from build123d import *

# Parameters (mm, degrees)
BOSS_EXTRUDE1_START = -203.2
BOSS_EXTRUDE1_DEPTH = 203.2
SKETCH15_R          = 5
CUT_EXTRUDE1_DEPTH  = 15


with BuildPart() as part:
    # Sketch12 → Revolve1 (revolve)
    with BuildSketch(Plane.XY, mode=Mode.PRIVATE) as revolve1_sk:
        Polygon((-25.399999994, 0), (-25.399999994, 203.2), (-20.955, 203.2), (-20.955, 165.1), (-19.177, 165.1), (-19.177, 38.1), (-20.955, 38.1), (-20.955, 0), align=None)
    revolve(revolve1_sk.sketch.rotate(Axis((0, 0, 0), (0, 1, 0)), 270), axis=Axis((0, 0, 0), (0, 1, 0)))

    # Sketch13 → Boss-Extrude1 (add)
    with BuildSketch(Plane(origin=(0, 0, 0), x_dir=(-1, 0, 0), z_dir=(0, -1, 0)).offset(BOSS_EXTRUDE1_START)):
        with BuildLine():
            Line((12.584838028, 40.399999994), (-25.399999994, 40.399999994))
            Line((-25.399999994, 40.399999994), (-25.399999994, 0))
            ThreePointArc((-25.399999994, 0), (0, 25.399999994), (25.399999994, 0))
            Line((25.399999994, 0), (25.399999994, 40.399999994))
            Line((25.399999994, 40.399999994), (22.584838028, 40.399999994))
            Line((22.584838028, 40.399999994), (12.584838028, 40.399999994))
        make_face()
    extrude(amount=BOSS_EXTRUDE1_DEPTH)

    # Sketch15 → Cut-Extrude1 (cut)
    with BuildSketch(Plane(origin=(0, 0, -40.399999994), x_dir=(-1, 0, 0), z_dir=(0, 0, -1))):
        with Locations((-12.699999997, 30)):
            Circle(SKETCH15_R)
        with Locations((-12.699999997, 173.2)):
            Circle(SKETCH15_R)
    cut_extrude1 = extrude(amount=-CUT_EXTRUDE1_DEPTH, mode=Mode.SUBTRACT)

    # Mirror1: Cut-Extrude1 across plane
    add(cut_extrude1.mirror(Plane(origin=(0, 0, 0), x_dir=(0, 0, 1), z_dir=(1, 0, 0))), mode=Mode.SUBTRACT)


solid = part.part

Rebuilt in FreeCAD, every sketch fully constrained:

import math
import FreeCAD as App
import Part
import Sketcher
Q = App.Units.Quantity

doc = App.newDocument("Part")
body = doc.addObject("PartDesign::Body", "Body")

# Sketch on XY plane
sketch1 = doc.addObject("Sketcher::SketchObject", "Sketch")
body.addObject(sketch1)
sketch1.AttachmentSupport = (doc.XY_Plane, [""])
sketch1.MapMode = "FlatFace"
sketch1.addGeometry(Part.LineSegment(App.Vector(-25.4, 203.2, 0), App.Vector(-25.4, 0, 0)), False)
sketch1.addGeometry(Part.LineSegment(App.Vector(-25.4, 0, 0), App.Vector(-21, 0, 0)), False)
sketch1.addGeometry(Part.LineSegment(App.Vector(-21, 0, 0), App.Vector(-21, 38.1, 0)), False)
sketch1.addGeometry(Part.LineSegment(App.Vector(-21, 38.1, 0), App.Vector(-19.2, 38.1, 0)), False)
sketch1.addGeometry(Part.LineSegment(App.Vector(-19.2, 38.1, 0), App.Vector(-19.2, 165.1, 0)), False)
sketch1.addGeometry(Part.LineSegment(App.Vector(-19.2, 165.1, 0), App.Vector(-21, 165.1, 0)), False)
sketch1.addGeometry(Part.LineSegment(App.Vector(-21, 165.1, 0), App.Vector(-21, 203.2, 0)), False)
sketch1.addGeometry(Part.LineSegment(App.Vector(-21, 203.2, 0), App.Vector(-25.4, 203.2, 0)), False)
sketch1.addConstraint(Sketcher.Constraint("Coincident", 0, 2, 1, 1))
sketch1.addConstraint(Sketcher.Constraint("Coincident", 1, 2, 2, 1))
sketch1.addConstraint(Sketcher.Constraint("Coincident", 2, 2, 3, 1))
sketch1.addConstraint(Sketcher.Constraint("Coincident", 3, 2, 4, 1))
sketch1.addConstraint(Sketcher.Constraint("Coincident", 4, 2, 5, 1))
sketch1.addConstraint(Sketcher.Constraint("Coincident", 5, 2, 6, 1))
sketch1.addConstraint(Sketcher.Constraint("Coincident", 6, 2, 7, 1))
sketch1.addConstraint(Sketcher.Constraint("Coincident", 7, 2, 0, 1))
sketch1.addConstraint(Sketcher.Constraint("Vertical", 0))
sketch1.addConstraint(Sketcher.Constraint("Horizontal", 1))
sketch1.addConstraint(Sketcher.Constraint("Vertical", 2))
sketch1.addConstraint(Sketcher.Constraint("Horizontal", 3))
sketch1.addConstraint(Sketcher.Constraint("Vertical", 4))
sketch1.addConstraint(Sketcher.Constraint("Horizontal", 5))
sketch1.addConstraint(Sketcher.Constraint("Vertical", 6))
sketch1.addConstraint(Sketcher.Constraint("Horizontal", 7))
sketch1.addConstraint(Sketcher.Constraint("PointOnObject", 0, 2, -1))
sketch1.addConstraint(Sketcher.Constraint("Vertical", 2, 2, 5, 2))
sketch1.addConstraint(Sketcher.Constraint("Equal", 2, 6))
sketch1.addConstraint(Sketcher.Constraint("DistanceY", 0, 2, 0, 1, Q("8 in")))
sketch1.addConstraint(Sketcher.Constraint("DistanceY", 4, 1, 4, 2, Q("5 in")))
sketch1.addConstraint(Sketcher.Constraint("DistanceX", 0, 2, -1, 1, Q("1 in")))
sketch1.addConstraint(Sketcher.Constraint("DistanceX", 3, 1, 3, 2, Q("0.07 in")))
sketch1.addConstraint(Sketcher.Constraint("DistanceX", 1, 1, 1, 2, Q("0.175 in")))
revolution = doc.addObject("PartDesign::Revolution", "Revolution")
body.addObject(revolution)
revolution.Profile = sketch1
revolution.ReferenceAxis = (sketch1, ["V_Axis"])
revolution.Angle = 360

# Sketch on XZ plane
sketch2 = doc.addObject("Sketcher::SketchObject", "Sketch001")
body.addObject(sketch2)
sketch2.AttachmentSupport = (doc.XZ_Plane, [""])
sketch2.MapMode = "FlatFace"
sketch2.AttachmentOffset = App.Placement(App.Vector(0, 0, -8 * 25.4), App.Rotation())
sketch2.addGeometry(Part.LineSegment(App.Vector(25, -40, 0), App.Vector(25, 0, 0)), False)
sketch2.addGeometry(Part.ArcOfCircle(Part.Circle(App.Vector(0, 0, 0), App.Vector(0, 0, 1), 25), math.radians(180), math.radians(360)), False)
sketch2.addGeometry(Part.LineSegment(App.Vector(-25, 0, 0), App.Vector(-25, -40, 0)), False)
sketch2.addGeometry(Part.LineSegment(App.Vector(-25, -40, 0), App.Vector(25, -40, 0)), False)
sketch2.addConstraint(Sketcher.Constraint("Tangent", 0, 2, 1, 2))
sketch2.addConstraint(Sketcher.Constraint("Tangent", 1, 1, 2, 1))
sketch2.addConstraint(Sketcher.Constraint("Coincident", 2, 2, 3, 1))
sketch2.addConstraint(Sketcher.Constraint("Coincident", 3, 2, 0, 1))
sketch2.addConstraint(Sketcher.Constraint("Vertical", 0))
sketch2.addConstraint(Sketcher.Constraint("Vertical", 2))
sketch2.addConstraint(Sketcher.Constraint("Horizontal", 3))
sketch2.addConstraint(Sketcher.Constraint("Coincident", 1, 3, -1, 1))
sketch2.addConstraint(Sketcher.Constraint("Radius", 1, Q("1 in")))
sketch2.addConstraint(Sketcher.Constraint("DistanceY", 0, 1, 0, 2, Q("40.4 mm")))
pad1 = doc.addObject("PartDesign::Pad", "Pad")
body.addObject(pad1)
pad1.Profile = sketch2
pad1.Length = Q("8 in")

# Sketch on XY plane
sketch3 = doc.addObject("Sketcher::SketchObject", "Sketch002")
body.addObject(sketch3)
sketch3.AttachmentSupport = (doc.XY_Plane, [""])
sketch3.MapMode = "FlatFace"
sketch3.AttachmentOffset = App.Placement(App.Vector(0, 0, -40.4), App.Rotation())
sketch3.addGeometry(Part.Circle(App.Vector(13, 30, 0), App.Vector(0, 0, 1), 5), False)
sketch3.addGeometry(Part.Circle(App.Vector(13, 173, 0), App.Vector(0, 0, 1), 5), False)
sketch3.addConstraint(Sketcher.Constraint("Equal", 0, 1))
sketch3.addConstraint(Sketcher.Constraint("Vertical", 0, 3, 1, 3))
sketch3.addConstraint(Sketcher.Constraint("DistanceX", -1, 1, 0, 3, Q("0.5 in")))
sketch3.addConstraint(Sketcher.Constraint("Diameter", 0, Q("10 mm")))
sketch3.addConstraint(Sketcher.Constraint("DistanceY", -1, 1, 0, 3, Q("30 mm")))
sketch3.addConstraint(Sketcher.Constraint("DistanceY", -1, 1, 1, 3, Q("173.2 mm")))
pocket1 = doc.addObject("PartDesign::Pocket", "Pocket")
body.addObject(pocket1)
pocket1.Profile = sketch3
pocket1.Length = 15
pocket1.Reversed = True
doc.recompute()

mirrored = doc.addObject("PartDesign::Mirrored", "Mirrored")
body.addObject(mirrored)
mirrored.Originals = [pocket1]
mirrored.MirrorPlane = (doc.YZ_Plane, [""])
body.Tip = mirrored

doc.recompute()
